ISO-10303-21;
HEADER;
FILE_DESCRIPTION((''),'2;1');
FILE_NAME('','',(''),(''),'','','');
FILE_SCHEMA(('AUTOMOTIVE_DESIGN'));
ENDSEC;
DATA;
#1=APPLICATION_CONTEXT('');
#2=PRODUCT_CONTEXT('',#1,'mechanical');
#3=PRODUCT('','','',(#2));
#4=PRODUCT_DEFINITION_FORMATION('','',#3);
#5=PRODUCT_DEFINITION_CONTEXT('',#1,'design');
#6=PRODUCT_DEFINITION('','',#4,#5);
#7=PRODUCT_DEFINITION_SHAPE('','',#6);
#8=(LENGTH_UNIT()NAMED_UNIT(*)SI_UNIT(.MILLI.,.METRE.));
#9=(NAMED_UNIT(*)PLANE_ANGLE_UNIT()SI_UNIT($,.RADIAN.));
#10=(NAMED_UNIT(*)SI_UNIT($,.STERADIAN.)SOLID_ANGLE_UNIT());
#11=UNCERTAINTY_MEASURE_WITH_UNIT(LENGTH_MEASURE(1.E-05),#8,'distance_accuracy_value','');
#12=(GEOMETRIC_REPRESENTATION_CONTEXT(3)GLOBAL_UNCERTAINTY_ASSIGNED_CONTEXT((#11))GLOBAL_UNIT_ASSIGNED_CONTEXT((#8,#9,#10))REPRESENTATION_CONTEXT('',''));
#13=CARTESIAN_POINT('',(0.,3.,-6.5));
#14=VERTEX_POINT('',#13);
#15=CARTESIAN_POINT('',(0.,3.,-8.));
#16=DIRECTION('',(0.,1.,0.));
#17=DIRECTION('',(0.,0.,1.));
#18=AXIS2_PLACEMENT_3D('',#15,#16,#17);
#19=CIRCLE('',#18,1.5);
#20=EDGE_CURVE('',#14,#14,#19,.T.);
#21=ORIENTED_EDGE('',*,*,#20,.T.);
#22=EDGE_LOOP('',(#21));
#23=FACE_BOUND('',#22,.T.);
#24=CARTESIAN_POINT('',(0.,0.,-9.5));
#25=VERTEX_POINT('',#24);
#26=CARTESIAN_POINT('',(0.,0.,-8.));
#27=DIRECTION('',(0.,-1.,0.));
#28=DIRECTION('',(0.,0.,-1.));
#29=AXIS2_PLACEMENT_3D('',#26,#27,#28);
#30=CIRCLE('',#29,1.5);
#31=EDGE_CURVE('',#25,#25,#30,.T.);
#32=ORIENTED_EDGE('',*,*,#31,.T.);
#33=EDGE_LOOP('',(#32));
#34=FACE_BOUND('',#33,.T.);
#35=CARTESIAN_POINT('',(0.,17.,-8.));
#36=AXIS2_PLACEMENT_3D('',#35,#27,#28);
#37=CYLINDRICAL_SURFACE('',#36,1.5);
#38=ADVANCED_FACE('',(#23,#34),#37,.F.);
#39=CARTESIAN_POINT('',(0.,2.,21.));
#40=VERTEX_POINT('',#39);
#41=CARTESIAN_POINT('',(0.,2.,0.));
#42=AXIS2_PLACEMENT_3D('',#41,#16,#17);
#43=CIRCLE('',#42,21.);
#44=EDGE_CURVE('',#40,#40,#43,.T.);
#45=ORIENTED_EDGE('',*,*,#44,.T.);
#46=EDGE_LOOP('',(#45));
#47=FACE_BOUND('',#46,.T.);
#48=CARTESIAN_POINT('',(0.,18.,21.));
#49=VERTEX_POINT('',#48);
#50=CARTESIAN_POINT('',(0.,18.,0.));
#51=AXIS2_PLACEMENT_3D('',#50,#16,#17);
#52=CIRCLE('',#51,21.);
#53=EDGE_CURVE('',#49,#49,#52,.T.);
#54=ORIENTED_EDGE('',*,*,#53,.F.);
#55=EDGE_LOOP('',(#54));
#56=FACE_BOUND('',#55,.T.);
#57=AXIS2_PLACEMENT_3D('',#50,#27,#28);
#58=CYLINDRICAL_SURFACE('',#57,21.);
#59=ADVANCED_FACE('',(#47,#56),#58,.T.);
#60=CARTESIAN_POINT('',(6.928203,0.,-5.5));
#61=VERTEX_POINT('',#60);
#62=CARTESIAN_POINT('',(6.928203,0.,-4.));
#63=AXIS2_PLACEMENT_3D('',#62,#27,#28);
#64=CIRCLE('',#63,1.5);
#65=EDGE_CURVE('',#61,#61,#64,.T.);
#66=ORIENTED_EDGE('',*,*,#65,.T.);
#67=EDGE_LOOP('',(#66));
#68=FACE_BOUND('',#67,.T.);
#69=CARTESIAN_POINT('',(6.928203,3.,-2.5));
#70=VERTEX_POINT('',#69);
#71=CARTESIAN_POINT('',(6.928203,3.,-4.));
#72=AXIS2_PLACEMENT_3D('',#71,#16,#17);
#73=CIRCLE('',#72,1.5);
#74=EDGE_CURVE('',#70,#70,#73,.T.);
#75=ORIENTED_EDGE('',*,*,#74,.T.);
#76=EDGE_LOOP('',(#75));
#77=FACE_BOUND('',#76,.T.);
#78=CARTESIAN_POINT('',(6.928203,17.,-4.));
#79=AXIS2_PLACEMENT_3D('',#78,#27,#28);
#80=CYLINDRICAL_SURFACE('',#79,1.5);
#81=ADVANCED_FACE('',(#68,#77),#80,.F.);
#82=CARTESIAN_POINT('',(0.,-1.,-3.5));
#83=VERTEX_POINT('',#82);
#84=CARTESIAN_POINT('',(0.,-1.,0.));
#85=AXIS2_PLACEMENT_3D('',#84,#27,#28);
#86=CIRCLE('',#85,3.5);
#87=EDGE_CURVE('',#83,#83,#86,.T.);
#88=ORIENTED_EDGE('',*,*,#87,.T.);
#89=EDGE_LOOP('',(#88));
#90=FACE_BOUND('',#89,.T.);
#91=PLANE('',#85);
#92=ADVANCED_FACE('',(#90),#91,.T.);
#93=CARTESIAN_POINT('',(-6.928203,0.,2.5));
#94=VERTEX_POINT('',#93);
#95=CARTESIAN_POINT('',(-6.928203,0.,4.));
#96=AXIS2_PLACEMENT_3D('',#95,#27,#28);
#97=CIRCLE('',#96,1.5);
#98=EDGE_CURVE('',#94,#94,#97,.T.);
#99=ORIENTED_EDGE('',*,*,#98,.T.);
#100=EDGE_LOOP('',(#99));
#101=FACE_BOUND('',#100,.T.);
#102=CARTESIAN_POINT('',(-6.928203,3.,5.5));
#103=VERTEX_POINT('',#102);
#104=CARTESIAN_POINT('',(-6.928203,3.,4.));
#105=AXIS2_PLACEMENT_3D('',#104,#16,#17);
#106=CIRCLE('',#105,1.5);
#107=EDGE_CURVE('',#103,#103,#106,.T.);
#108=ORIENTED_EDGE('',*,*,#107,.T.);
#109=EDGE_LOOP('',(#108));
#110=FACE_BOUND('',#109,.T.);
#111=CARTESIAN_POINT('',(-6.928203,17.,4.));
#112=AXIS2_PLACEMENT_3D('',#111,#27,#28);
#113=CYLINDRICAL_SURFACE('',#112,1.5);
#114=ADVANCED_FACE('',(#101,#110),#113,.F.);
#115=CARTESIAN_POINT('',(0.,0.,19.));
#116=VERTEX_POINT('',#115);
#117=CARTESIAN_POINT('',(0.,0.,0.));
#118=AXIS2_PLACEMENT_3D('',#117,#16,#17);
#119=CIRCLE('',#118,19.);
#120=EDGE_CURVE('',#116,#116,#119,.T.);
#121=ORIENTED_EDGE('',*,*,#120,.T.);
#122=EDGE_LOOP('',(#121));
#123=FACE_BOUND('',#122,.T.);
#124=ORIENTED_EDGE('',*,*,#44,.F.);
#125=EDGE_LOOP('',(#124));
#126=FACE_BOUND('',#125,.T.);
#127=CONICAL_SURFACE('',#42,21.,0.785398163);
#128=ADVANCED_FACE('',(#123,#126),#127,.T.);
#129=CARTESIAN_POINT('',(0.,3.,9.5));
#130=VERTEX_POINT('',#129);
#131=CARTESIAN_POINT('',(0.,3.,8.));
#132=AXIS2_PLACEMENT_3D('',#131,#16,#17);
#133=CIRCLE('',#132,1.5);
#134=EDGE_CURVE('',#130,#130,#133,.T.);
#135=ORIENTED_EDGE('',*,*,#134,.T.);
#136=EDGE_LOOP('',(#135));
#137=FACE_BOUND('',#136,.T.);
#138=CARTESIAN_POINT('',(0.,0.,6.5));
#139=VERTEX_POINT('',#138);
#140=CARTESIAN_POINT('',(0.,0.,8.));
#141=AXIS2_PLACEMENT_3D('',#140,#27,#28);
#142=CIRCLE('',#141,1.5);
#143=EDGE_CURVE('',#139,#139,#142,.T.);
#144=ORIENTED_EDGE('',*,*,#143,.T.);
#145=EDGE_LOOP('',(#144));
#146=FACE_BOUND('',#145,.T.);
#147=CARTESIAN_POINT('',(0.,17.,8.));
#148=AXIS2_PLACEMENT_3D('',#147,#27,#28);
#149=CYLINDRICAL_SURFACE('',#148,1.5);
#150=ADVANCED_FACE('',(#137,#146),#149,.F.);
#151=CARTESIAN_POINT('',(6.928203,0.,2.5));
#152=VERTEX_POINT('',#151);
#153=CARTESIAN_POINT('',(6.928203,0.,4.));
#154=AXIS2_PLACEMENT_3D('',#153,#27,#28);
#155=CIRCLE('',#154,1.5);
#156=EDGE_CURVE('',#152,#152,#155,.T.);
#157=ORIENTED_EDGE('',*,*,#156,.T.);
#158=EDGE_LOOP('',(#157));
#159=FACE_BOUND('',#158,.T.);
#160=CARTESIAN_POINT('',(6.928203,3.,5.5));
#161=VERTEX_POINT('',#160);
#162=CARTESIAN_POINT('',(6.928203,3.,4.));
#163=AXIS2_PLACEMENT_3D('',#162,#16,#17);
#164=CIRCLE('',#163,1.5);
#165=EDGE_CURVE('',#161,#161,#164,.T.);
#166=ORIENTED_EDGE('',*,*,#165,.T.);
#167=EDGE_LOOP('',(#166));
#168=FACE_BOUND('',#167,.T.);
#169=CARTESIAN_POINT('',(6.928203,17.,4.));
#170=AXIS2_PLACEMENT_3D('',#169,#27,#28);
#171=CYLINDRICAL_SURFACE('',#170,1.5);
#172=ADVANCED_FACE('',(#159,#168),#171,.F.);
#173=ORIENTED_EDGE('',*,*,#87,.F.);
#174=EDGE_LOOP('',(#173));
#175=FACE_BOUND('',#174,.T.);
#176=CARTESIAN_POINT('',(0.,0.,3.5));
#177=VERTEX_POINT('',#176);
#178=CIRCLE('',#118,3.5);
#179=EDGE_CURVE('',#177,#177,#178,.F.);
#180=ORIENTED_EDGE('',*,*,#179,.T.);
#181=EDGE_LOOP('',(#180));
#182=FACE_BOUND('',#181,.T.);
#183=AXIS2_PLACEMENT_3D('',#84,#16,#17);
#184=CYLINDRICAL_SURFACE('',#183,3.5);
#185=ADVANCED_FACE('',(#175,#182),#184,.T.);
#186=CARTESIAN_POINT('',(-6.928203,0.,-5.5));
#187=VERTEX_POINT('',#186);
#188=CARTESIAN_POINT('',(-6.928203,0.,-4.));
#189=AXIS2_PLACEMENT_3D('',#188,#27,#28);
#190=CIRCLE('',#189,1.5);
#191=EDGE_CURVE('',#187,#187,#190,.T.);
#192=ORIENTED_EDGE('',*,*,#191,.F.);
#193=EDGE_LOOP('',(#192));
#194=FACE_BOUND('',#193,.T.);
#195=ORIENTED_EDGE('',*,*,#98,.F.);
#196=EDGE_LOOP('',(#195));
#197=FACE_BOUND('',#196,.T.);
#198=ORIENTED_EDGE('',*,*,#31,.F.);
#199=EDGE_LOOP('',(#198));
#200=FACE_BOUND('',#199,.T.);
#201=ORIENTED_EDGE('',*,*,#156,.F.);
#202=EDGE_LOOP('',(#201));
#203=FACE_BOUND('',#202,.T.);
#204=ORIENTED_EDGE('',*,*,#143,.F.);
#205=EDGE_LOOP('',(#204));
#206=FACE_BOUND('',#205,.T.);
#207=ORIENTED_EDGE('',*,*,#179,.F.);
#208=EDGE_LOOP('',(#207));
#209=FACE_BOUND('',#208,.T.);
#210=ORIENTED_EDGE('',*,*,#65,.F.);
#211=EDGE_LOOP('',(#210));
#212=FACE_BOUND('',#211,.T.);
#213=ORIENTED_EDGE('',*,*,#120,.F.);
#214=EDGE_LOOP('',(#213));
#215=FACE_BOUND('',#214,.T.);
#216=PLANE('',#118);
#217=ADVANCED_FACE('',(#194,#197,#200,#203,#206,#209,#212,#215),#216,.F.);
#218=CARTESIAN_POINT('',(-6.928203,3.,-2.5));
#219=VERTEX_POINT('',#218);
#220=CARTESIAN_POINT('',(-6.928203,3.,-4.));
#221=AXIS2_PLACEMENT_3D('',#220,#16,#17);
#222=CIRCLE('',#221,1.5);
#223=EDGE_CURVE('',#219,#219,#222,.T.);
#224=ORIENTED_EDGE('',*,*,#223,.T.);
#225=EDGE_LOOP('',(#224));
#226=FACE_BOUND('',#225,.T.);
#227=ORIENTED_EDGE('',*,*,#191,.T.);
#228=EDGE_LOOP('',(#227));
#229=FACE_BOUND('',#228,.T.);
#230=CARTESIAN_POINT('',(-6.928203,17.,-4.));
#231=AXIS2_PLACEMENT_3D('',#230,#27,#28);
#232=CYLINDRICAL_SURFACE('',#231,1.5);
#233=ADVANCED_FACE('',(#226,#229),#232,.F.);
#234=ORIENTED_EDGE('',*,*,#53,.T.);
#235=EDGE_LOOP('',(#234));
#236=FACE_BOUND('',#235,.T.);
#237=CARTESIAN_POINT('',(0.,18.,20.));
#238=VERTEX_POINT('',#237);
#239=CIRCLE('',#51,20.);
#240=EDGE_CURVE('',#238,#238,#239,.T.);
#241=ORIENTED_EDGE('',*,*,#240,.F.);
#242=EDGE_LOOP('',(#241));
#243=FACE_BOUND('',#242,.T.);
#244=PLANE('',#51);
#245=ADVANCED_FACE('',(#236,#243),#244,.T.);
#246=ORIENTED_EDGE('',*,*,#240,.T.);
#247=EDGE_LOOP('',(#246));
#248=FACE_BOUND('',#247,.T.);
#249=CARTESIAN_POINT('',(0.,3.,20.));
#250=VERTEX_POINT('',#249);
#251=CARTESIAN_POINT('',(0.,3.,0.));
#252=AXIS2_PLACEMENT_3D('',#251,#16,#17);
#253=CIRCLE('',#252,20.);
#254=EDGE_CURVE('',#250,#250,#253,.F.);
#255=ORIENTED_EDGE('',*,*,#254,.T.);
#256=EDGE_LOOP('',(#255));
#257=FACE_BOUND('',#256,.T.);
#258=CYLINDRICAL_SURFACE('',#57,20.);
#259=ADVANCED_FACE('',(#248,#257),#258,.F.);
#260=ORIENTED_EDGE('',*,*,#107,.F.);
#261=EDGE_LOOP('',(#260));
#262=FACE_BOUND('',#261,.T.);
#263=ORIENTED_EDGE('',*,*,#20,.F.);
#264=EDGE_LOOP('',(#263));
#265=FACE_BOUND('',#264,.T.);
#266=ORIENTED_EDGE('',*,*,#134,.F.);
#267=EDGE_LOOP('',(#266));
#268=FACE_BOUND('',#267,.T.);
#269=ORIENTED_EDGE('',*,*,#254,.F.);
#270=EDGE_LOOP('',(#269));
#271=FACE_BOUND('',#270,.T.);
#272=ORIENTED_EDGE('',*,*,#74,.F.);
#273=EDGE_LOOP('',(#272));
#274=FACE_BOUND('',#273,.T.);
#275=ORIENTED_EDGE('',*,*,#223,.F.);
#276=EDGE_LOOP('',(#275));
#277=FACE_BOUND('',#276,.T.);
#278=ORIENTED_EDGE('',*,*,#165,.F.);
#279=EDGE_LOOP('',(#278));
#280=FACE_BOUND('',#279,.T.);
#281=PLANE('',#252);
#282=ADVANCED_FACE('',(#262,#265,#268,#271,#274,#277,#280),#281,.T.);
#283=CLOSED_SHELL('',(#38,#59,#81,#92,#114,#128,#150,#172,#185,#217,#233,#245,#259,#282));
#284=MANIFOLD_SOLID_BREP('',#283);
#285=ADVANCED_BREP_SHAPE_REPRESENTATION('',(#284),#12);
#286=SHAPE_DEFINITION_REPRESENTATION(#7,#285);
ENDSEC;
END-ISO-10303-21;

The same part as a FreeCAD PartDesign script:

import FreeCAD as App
import Part
import Sketcher

V = App.Vector
Q = App.Units.Quantity

doc = App.newDocument("Part")
params = doc.addObject("Spreadsheet::Sheet", "Params")
for row, (alias, value) in enumerate([
    ("sketch1_diameter", "40 mm"),
    ("pad1_length", "3 mm"),
    ("sketch2_diameter", "42 mm"),
    ("sketch2_diameter2", "40 mm"),
    ("pad2_length", "18 mm"),
    ("sketch3_width", "2 mm"),
    ("groove_angle", "360 deg"),
    ("sketch4_diameter", "3 mm"),
    ("pocket1_length", "17 mm"),
    ("sketch5_diameter", "7 mm"),
    ("pad3_length", "1 mm"),
], start=1):
    params.set(f"A{row}", alias)
    params.set(f"B{row}", "=" + value)
    params.setAlias(f"B{row}", alias)

body = doc.addObject("PartDesign::Body", "Body")

# Sketch on XZ plane
sketch1 = doc.addObject("Sketcher::SketchObject", "Sketch")
body.addObject(sketch1)
sketch1.AttachmentSupport = (doc.XZ_Plane, [""])
sketch1.MapMode = "FlatFace"
sketch1.addGeometry(Part.Circle(V(0, 0, 0), V(0, 0, 1), 20), False)
sketch1.addConstraint([
    Sketcher.Constraint("Coincident", 0, 3, -1, 1),
    Sketcher.Constraint("Diameter", 0, Q("40 mm")),
])
sketch1.setExpression("Constraints[1]", "Params.sketch1_diameter")
pad1 = doc.addObject("PartDesign::Pad", "Pad")
body.addObject(pad1)
pad1.Profile = sketch1
pad1.setExpression("Length", "Params.pad1_length")
pad1.Reversed = True

# Sketch on XZ plane
sketch2 = doc.addObject("Sketcher::SketchObject", "Sketch001")
body.addObject(sketch2)
sketch2.AttachmentSupport = (doc.XZ_Plane, [""])
sketch2.MapMode = "FlatFace"
sketch2.addGeometry([
    Part.Circle(V(0, 0, 0), V(0, 0, 1), 21),
    Part.Circle(V(0, 0, 0), V(0, 0, 1), 20),
], False)
sketch2.addConstraint([
    Sketcher.Constraint("Coincident", 0, 3, -1, 1),
    Sketcher.Constraint("Coincident", 1, 3, -1, 1),
    Sketcher.Constraint("Diameter", 0, Q("42 mm")),
    Sketcher.Constraint("Diameter", 1, Q("40 mm")),
])
sketch2.setExpression("Constraints[2]", "Params.sketch2_diameter")
sketch2.setExpression("Constraints[3]", "Params.sketch2_diameter2")
pad2 = doc.addObject("PartDesign::Pad", "Pad001")
body.addObject(pad2)
pad2.Profile = sketch2
pad2.setExpression("Length", "Params.pad2_length")
pad2.Reversed = True

# Sketch on XY plane
sketch3 = doc.addObject("Sketcher::SketchObject", "Sketch002")
body.addObject(sketch3)
sketch3.AttachmentSupport = (doc.XY_Plane, [""])
sketch3.MapMode = "FlatFace"
sketch3.addGeometry([
    Part.LineSegment(V(21, 2, 0), V(19, 0, 0)),
    Part.LineSegment(V(19, 0, 0), V(21, 0, 0)),
    Part.LineSegment(V(21, 0, 0), V(21, 2, 0)),
], False)
sketch3.addConstraint([
    Sketcher.Constraint("Coincident", 0, 2, 1, 1),
    Sketcher.Constraint("Coincident", 1, 2, 2, 1),
    Sketcher.Constraint("Coincident", 2, 2, 0, 1),
    Sketcher.Constraint("Horizontal", 1),
    Sketcher.Constraint("Vertical", 2),
    Sketcher.Constraint("PointOnObject", 0, 2, -1),
    Sketcher.Constraint("Equal", 1, 2),
    Sketcher.Constraint("DistanceX", 1, 1, 1, 2, Q("2 mm")),
    Sketcher.Constraint("DistanceX", -1, 1, 0, 2, Q("19 mm")),
])
sketch3.setExpression("Constraints[7]", "Params.sketch3_width")
groove = doc.addObject("PartDesign::Groove", "Groove")
body.addObject(groove)
groove.Profile = sketch3
groove.ReferenceAxis = (sketch3, ["V_Axis"])
groove.setExpression("Angle", "Params.groove_angle")

# Sketch on XZ plane
sketch4 = doc.addObject("Sketcher::SketchObject", "Sketch003")
body.addObject(sketch4)
sketch4.AttachmentSupport = (doc.XZ_Plane, [""])
sketch4.MapMode = "FlatFace"
sketch4.addGeometry([
    Part.Circle(V(0, 8, 0), V(0, 0, 1), 1.5),  # 0
    Part.Circle(V(6.928203, 4, 0), V(0, 0, 1), 1.5),  # 1
    Part.Circle(V(6.928203, -4, 0), V(0, 0, 1), 1.5),  # 2
    Part.Circle(V(0, -8, 0), V(0, 0, 1), 1.5),  # 3
    Part.Circle(V(-6.928203, -4, 0), V(0, 0, 1), 1.5),  # 4
    Part.Circle(V(-6.928203, 4, 0), V(0, 0, 1), 1.5),  # 5
], False)
sketch4.addConstraint([
    Sketcher.Constraint("Equal", 0, 1),
    Sketcher.Constraint("Equal", 1, 2),
    Sketcher.Constraint("Equal", 2, 3),
    Sketcher.Constraint("Equal", 3, 4),
    Sketcher.Constraint("Equal", 4, 5),
    Sketcher.Constraint("Symmetric", 0, 3, 3, 3, -1, 1),
    Sketcher.Constraint("Symmetric", 1, 3, 4, 3, -1, 1),
    Sketcher.Constraint("Symmetric", 2, 3, 5, 3, -1, 1),
    Sketcher.Constraint("Symmetric", 2, 3, 4, 3, -2),
    Sketcher.Constraint("PointOnObject", 0, 3, -2),
    Sketcher.Constraint("Diameter", 0, Q("3 mm")),
    Sketcher.Constraint("DistanceY", -1, 1, 0, 3, Q("8 mm")),
    Sketcher.Constraint("DistanceY", -1, 1, 1, 3, Q("4 mm")),
    Sketcher.Constraint("DistanceX", -1, 1, 1, 3, Q("6.928203 mm")),
])
sketch4.setExpression("Constraints[10]", "Params.sketch4_diameter")
pocket1 = doc.addObject("PartDesign::Pocket", "Pocket")
body.addObject(pocket1)
pocket1.Profile = sketch4
pocket1.setExpression("Length", "Params.pocket1_length")

# Sketch on XZ plane
sketch5 = doc.addObject("Sketcher::SketchObject", "Sketch004")
body.addObject(sketch5)
sketch5.AttachmentSupport = (doc.XZ_Plane, [""])
sketch5.MapMode = "FlatFace"
sketch5.addGeometry(Part.Circle(V(0, 0, 0), V(0, 0, 1), 3.5), False)
sketch5.addConstraint([
    Sketcher.Constraint("Coincident", 0, 3, -1, 1),
    Sketcher.Constraint("Diameter", 0, Q("7 mm")),
])
sketch5.setExpression("Constraints[1]", "Params.sketch5_diameter")
pad3 = doc.addObject("PartDesign::Pad", "Pad002")
body.addObject(pad3)
pad3.Profile = sketch5
pad3.setExpression("Length", "Params.pad3_length")

doc.recompute()
